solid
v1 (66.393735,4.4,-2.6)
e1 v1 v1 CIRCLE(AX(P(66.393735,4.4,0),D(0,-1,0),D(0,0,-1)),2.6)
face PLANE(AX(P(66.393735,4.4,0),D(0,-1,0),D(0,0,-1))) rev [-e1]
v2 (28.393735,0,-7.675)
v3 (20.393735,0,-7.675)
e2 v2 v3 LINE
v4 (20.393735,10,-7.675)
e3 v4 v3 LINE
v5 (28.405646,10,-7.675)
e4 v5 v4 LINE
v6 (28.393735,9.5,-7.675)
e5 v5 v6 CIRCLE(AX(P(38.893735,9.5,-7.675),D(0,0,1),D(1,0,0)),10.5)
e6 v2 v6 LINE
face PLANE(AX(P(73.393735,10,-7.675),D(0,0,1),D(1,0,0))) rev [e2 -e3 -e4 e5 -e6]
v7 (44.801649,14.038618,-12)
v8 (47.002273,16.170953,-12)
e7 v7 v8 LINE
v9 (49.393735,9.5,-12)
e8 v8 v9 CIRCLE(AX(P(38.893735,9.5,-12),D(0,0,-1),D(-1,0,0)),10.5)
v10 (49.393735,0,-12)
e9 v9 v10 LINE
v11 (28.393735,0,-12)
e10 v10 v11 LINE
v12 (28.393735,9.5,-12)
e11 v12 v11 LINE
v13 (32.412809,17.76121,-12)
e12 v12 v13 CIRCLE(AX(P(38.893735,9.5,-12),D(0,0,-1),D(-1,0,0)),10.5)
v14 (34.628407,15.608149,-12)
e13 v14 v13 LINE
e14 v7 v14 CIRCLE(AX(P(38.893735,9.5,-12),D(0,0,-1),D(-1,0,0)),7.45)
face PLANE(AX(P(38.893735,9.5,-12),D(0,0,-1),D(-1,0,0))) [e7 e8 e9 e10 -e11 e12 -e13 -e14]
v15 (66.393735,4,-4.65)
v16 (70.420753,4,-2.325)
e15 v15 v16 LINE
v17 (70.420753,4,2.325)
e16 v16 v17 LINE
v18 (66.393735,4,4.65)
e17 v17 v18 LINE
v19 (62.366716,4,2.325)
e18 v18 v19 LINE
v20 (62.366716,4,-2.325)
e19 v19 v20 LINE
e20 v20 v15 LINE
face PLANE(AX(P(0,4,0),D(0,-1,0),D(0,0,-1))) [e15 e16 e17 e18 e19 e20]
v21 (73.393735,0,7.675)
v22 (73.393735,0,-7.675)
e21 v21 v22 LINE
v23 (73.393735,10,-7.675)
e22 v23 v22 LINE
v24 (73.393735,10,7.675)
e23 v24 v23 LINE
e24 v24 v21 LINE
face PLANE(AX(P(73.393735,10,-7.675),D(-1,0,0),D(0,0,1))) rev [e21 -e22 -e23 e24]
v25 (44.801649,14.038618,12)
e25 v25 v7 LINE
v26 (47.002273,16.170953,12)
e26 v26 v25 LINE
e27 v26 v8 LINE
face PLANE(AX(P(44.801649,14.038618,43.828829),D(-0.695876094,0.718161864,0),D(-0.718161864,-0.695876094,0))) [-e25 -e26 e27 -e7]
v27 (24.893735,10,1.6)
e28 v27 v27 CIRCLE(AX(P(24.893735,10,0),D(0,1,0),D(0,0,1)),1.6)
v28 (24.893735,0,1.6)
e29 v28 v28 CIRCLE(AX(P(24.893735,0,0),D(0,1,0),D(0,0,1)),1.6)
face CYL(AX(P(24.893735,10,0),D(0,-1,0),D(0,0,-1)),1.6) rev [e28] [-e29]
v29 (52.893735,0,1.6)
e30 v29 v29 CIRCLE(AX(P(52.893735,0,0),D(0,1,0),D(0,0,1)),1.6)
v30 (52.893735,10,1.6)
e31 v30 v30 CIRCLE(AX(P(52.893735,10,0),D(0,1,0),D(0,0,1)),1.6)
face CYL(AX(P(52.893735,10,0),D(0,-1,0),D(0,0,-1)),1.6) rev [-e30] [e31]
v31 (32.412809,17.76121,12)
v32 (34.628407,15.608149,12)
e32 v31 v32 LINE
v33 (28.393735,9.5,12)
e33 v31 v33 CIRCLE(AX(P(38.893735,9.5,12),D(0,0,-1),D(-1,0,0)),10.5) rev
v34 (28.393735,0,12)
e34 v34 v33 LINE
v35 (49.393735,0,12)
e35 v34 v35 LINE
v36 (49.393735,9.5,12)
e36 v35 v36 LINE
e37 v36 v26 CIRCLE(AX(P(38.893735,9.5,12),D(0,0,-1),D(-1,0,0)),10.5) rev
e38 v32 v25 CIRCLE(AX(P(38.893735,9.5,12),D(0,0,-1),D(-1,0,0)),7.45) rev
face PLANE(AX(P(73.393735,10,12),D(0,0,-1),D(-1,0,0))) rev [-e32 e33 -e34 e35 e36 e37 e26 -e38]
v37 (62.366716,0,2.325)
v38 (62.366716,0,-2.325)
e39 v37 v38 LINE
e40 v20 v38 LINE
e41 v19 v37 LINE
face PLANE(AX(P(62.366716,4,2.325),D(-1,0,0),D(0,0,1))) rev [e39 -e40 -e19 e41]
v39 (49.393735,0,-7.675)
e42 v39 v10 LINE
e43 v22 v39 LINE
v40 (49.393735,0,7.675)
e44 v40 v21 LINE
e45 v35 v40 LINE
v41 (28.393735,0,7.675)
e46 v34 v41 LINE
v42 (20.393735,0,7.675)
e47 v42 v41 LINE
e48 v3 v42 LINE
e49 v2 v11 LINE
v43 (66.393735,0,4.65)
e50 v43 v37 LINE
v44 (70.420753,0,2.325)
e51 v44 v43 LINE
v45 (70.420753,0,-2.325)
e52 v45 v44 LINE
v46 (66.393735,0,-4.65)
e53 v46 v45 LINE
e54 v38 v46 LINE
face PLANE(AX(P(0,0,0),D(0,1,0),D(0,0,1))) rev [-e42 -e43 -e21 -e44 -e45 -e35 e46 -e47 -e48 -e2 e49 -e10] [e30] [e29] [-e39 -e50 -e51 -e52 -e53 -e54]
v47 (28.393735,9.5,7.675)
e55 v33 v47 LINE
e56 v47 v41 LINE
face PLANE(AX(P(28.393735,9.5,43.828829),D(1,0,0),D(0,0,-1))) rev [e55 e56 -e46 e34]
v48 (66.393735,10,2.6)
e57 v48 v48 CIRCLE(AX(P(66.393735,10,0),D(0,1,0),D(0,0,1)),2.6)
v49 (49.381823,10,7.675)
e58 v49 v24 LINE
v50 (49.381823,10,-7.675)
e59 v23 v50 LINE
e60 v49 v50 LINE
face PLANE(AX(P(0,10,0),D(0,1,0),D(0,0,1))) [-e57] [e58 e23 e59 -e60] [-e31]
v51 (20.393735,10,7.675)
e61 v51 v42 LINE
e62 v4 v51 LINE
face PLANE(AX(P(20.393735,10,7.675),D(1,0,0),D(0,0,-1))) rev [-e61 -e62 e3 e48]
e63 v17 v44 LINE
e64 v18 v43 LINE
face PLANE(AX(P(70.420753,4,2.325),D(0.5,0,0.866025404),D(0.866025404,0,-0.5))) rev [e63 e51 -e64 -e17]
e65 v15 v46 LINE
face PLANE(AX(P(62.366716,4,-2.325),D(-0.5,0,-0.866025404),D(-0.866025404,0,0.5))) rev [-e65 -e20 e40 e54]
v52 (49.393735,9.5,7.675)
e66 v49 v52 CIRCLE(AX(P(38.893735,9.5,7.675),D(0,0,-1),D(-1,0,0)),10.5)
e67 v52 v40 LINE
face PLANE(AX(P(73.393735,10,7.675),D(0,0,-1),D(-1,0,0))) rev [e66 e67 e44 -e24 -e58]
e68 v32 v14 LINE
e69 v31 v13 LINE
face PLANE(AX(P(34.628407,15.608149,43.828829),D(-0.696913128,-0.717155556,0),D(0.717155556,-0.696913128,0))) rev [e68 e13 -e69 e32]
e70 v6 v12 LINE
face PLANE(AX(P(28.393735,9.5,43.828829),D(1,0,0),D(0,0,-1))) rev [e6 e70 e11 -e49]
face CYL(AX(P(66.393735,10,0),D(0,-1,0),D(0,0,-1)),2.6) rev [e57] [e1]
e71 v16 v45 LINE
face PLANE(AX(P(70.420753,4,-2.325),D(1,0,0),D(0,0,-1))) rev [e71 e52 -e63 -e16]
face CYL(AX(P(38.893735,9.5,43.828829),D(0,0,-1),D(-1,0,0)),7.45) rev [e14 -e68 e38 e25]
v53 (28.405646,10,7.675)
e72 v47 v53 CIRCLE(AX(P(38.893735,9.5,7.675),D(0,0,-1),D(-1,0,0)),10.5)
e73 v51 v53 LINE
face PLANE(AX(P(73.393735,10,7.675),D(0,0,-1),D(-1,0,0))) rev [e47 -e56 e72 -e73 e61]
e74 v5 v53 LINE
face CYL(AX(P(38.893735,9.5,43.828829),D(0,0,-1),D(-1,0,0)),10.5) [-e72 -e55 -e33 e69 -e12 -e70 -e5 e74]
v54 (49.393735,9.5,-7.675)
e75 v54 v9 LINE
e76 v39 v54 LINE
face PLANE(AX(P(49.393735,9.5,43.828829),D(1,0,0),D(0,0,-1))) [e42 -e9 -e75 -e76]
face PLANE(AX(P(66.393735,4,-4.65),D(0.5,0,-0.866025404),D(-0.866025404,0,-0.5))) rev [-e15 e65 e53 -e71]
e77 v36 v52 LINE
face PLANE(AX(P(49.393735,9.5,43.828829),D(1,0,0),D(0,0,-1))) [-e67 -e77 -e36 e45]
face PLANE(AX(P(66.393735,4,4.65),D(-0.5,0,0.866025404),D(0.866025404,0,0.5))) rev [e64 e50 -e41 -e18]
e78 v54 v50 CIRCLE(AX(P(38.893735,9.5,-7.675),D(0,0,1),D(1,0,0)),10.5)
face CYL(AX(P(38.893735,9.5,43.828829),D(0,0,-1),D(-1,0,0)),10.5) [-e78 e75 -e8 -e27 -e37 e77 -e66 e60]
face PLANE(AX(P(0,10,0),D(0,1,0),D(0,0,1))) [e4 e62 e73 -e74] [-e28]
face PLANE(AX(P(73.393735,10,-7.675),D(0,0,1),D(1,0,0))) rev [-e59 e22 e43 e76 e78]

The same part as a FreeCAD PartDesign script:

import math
import FreeCAD as App
import Part
import Sketcher

V = App.Vector
Q = App.Units.Quantity

doc = App.newDocument("Part")
body = doc.addObject("PartDesign::Body", "Body")

# Sketch on XZ plane
sketch1 = body.newObject("Sketcher::SketchObject", "Sketch")
sketch1.AttachmentSupport = (doc.getObject("XZ_Plane"), [""])
sketch1.MapMode = "FlatFace"
sketch1.addGeometry(Part.LineSegment(V(20.4, -7.7, 0), V(20.4, 7.7, 0)), False)
sketch1.addGeometry(Part.LineSegment(V(20.4, 7.7, 0), V(73.4, 7.7, 0)), False)
sketch1.addGeometry(Part.LineSegment(V(73.4, 7.7, 0), V(73.4, -7.7, 0)), False)
sketch1.addGeometry(Part.LineSegment(V(73.4, -7.7, 0), V(20.4, -7.7, 0)), False)
sketch1.addGeometry(Part.Circle(V(24.9, 0, 0), V(0, 0, 1), 1.6), False)
sketch1.addGeometry(Part.Circle(V(52.9, 0, 0), V(0, 0, 1), 1.6), False)
sketch1.addGeometry(Part.Circle(V(66.4, 0, 0), V(0, 0, 1), 2.6), False)
sketch1.addConstraint(Sketcher.Constraint("Coincident", 0, 2, 1, 1))
sketch1.addConstraint(Sketcher.Constraint("Coincident", 1, 2, 2, 1))
sketch1.addConstraint(Sketcher.Constraint("Coincident", 2, 2, 3, 1))
sketch1.addConstraint(Sketcher.Constraint("Coincident", 3, 2, 0, 1))
sketch1.addConstraint(Sketcher.Constraint("Vertical", 0))
sketch1.addConstraint(Sketcher.Constraint("Horizontal", 1))
sketch1.addConstraint(Sketcher.Constraint("Vertical", 2))
sketch1.addConstraint(Sketcher.Constraint("Horizontal", 3))
sketch1.addConstraint(Sketcher.Constraint("Equal", 4, 5))
sketch1.addConstraint(Sketcher.Constraint("PointOnObject", 4, 3, -1))
sketch1.addConstraint(Sketcher.Constraint("PointOnObject", 5, 3, -1))
sketch1.addConstraint(Sketcher.Constraint("PointOnObject", 6, 3, -1))
sketch1.addConstraint(Sketcher.Constraint("Diameter", 4, Q("3.2 mm")))
sketch1.addConstraint(Sketcher.Constraint("Diameter", 6, Q("5.2 mm")))
sketch1.addConstraint(Sketcher.Constraint("DistanceX", 1, 1, 1, 2, Q("53 mm")))
sketch1.addConstraint(Sketcher.Constraint("DistanceX", 4, 3, 5, 3, Q("28 mm")))
sketch1.addConstraint(Sketcher.Constraint("DistanceX", 0, 2, 6, 3, Q("46 mm")))
sketch1.addConstraint(Sketcher.Constraint("DistanceY", 0, 1, 0, 2, Q("15.35 mm")))
sketch1.addConstraint(Sketcher.Constraint("DistanceX", 5, 3, 6, 3, Q("13.5 mm")))
sketch1.addConstraint(Sketcher.Constraint("DistanceY", -1, 1, 0, 2, Q("7.675 mm")))
sketch1.addConstraint(Sketcher.Constraint("DistanceX", -1, 1, 4, 3, Q("24.893735 mm")))
pad1 = body.newObject("PartDesign::Pad", "Pad")
pad1.Profile = sketch1
pad1.Length = 10
pad1.Reversed = True

# Sketch on XY plane
sketch2 = body.newObject("Sketcher::SketchObject", "Sketch001")
sketch2.AttachmentSupport = (doc.getObject("XY_Plane"), [""])
sketch2.MapMode = "FlatFace"
sketch2.AttachmentOffset = App.Placement(V(0, 0, -7.675), App.Rotation())
sketch2.addGeometry(Part.LineSegment(V(44.8, 14, 0), V(47, 16.2, 0)), False)
sketch2.addGeometry(Part.ArcOfCircle(Part.Circle(V(38.9, 9.5, 0), V(0, 0, 1), 10.5), math.radians(0), math.radians(39)), False)
sketch2.addGeometry(Part.LineSegment(V(49.4, 9.5, 0), V(49.4, 0, 0)), False)
sketch2.addGeometry(Part.LineSegment(V(49.4, 0, 0), V(28.4, 0, 0)), False)
sketch2.addGeometry(Part.LineSegment(V(28.4, 0, 0), V(28.4, 9.5, 0)), False)
sketch2.addGeometry(Part.ArcOfCircle(Part.Circle(V(38.9, 9.5, 0), V(0, 0, 1), 10.5), math.radians(128), math.radians(180)), False)
sketch2.addGeometry(Part.LineSegment(V(32.4, 17.8, 0), V(34.6, 15.6, 0)), False)
sketch2.addGeometry(Part.ArcOfCircle(Part.Circle(V(38.9, 9.5, 0), V(0, 0, 1), 7.5), math.radians(125), math.radians(398)), False)
sketch2.addConstraint(Sketcher.Constraint("Coincident", 0, 2, 1, 2))
sketch2.addConstraint(Sketcher.Constraint("Tangent", 1, 1, 2, 1))
sketch2.addConstraint(Sketcher.Constraint("Coincident", 2, 2, 3, 1))
sketch2.addConstraint(Sketcher.Constraint("Coincident", 3, 2, 4, 1))
sketch2.addConstraint(Sketcher.Constraint("Tangent", 4, 2, 5, 2))
sketch2.addConstraint(Sketcher.Constraint("Coincident", 5, 1, 6, 1))
sketch2.addConstraint(Sketcher.Constraint("Coincident", 6, 2, 7, 1))
sketch2.addConstraint(Sketcher.Constraint("Coincident", 7, 2, 0, 1))
sketch2.addConstraint(Sketcher.Constraint("Vertical", 2))
sketch2.addConstraint(Sketcher.Constraint("Horizontal", 3))
sketch2.addConstraint(Sketcher.Constraint("Vertical", 4))
sketch2.addConstraint(Sketcher.Constraint("Coincident", 5, 3, 1, 3))
sketch2.addConstraint(Sketcher.Constraint("Coincident", 7, 3, 1, 3))
sketch2.addConstraint(Sketcher.Constraint("Equal", 1, 5))
sketch2.addConstraint(Sketcher.Constraint("PointOnObject", 2, 2, -1))
sketch2.addConstraint(Sketcher.Constraint("Radius", 1, Q("10.5 mm")))
sketch2.addConstraint(Sketcher.Constraint("Radius", 7, Q("7.45 mm")))
sketch2.addConstraint(Sketcher.Constraint("DistanceY", 2, 2, 2, 1, Q("9.5 mm")))
sketch2.addConstraint(Sketcher.Constraint("DistanceX", 5, 1, 6, 2, Q("2.215599 mm")))
sketch2.addConstraint(Sketcher.Constraint("DistanceX", -1, 1, 5, 1, Q("32.412809 mm")))
sketch2.addConstraint(Sketcher.Constraint("DistanceY", -1, 1, 5, 1, Q("17.76121 mm")))
sketch2.addConstraint(Sketcher.Constraint("DistanceX", -1, 1, 7, 2, Q("44.801649 mm")))
sketch2.addConstraint(Sketcher.Constraint("Distance", 0, Q("3.064245 mm")))
pad2 = body.newObject("PartDesign::Pad", "Pad001")
pad2.Profile = sketch2
pad2.Type = "TwoLengths"
pad2.Length = 4.325
pad2.Length2 = 19.675
pad2.Reversed = True

# Sketch on XY plane
sketch3 = body.newObject("Sketcher::SketchObject", "Sketch002")
sketch3.AttachmentSupport = (doc.getObject("XY_Plane"), [""])
sketch3.MapMode = "FlatFace"
sketch3.AttachmentOffset = App.Placement(V(0, 0, 7.675), App.Rotation())
sketch3.addGeometry(Part.LineSegment(V(46, 10, 0), V(31, 10, 0)), False)
sketch3.addGeometry(Part.ArcOfCircle(Part.Circle(V(39, 10, 0), V(0, 0, 1), 7), math.radians(176), math.radians(364)), False)
sketch3.addConstraint(Sketcher.Constraint("Coincident", 0, 1, 1, 2))
sketch3.addConstraint(Sketcher.Constraint("Coincident", 1, 1, 0, 2))
sketch3.addConstraint(Sketcher.Constraint("Horizontal", 0))
sketch3.addConstraint(Sketcher.Constraint("Radius", 1, Q("7.45 mm")))
sketch3.addConstraint(Sketcher.Constraint("DistanceY", -1, 1, 0, 1, Q("10 mm")))
sketch3.addConstraint(Sketcher.Constraint("DistanceY", -1, 1, 1, 3, Q("9.5 mm")))
sketch3.addConstraint(Sketcher.Constraint("DistanceX", -1, 1, 1, 3, Q("38.893735 mm")))
pocket1 = body.newObject("PartDesign::Pocket", "Pocket")
pocket1.Profile = sketch3
pocket1.Type = "ThroughAll"

# Sketch on XZ plane
sketch4 = body.newObject("Sketcher::SketchObject", "Sketch003")
sketch4.AttachmentSupport = (doc.getObject("XZ_Plane"), [""])
sketch4.MapMode = "FlatFace"
sketch4.addGeometry(Part.LineSegment(V(62.4, 2.3, 0), V(62.4, -2.3, 0)), False)
sketch4.addGeometry(Part.LineSegment(V(62.4, -2.3, 0), V(66.4, -4.7, 0)), False)
sketch4.addGeometry(Part.LineSegment(V(66.4, -4.7, 0), V(70.4, -2.3, 0)), False)
sketch4.addGeometry(Part.LineSegment(V(70.4, -2.3, 0), V(70.4, 2.3, 0)), False)
sketch4.addGeometry(Part.LineSegment(V(70.4, 2.3, 0), V(66.4, 4.7, 0)), False)
sketch4.addGeometry(Part.LineSegment(V(66.4, 4.7, 0), V(62.4, 2.3, 0)), False)
sketch4.addConstraint(Sketcher.Constraint("Coincident", 0, 2, 1, 1))
sketch4.addConstraint(Sketcher.Constraint("Coincident", 1, 2, 2, 1))
sketch4.addConstraint(Sketcher.Constraint("Coincident", 2, 2, 3, 1))
sketch4.addConstraint(Sketcher.Constraint("Coincident", 3, 2, 4, 1))
sketch4.addConstraint(Sketcher.Constraint("Coincident", 4, 2, 5, 1))
sketch4.addConstraint(Sketcher.Constraint("Coincident", 5, 2, 0, 1))
sketch4.addConstraint(Sketcher.Constraint("Vertical", 0))
sketch4.addConstraint(Sketcher.Constraint("Vertical", 3))
sketch4.addConstraint(Sketcher.Constraint("Symmetric", 1, 2, 4, 2, -1))
sketch4.addConstraint(Sketcher.Constraint("Parallel", 1, 4))
sketch4.addConstraint(Sketcher.Constraint("Parallel", 2, 5))
sketch4.addConstraint(Sketcher.Constraint("Horizontal", 0, 2, 2, 2))
sketch4.addConstraint(Sketcher.Constraint("Horizontal", 3, 2, 5, 2))
sketch4.addConstraint(Sketcher.Constraint("Angle", 1, Q("-30 deg")))
sketch4.addConstraint(Sketcher.Constraint("DistanceY", 0, 2, 0, 1, Q("4.65 mm")))
sketch4.addConstraint(Sketcher.Constraint("DistanceY", 1, 2, 4, 2, Q("9.3 mm")))
sketch4.addConstraint(Sketcher.Constraint("DistanceX", -1, 1, 0, 2, Q("62.366716 mm")))
pocket2 = body.newObject("PartDesign::Pocket", "Pocket001")
pocket2.Profile = sketch4
pocket2.Length = 4

# Sketch on XZ plane
sketch5 = body.newObject("Sketcher::SketchObject", "Sketch004")
sketch5.AttachmentSupport = (doc.getObject("XZ_Plane"), [""])
sketch5.MapMode = "FlatFace"
sketch5.AttachmentOffset = App.Placement(V(0, 0, -4), App.Rotation())
sketch5.addGeometry(Part.Circle(V(66.4, 0, 0), V(0, 0, 1), 2.6), False)
sketch5.addConstraint(Sketcher.Constraint("PointOnObject", 0, 3, -1))
sketch5.addConstraint(Sketcher.Constraint("Diameter", 0, Q("5.2 mm")))
sketch5.addConstraint(Sketcher.Constraint("DistanceX", -1, 1, 0, 3, Q("66.393735 mm")))
pad3 = body.newObject("PartDesign::Pad", "Pad002")
pad3.Profile = sketch5
pad3.Length = 0.4
pad3.Reversed = True

doc.recompute()
